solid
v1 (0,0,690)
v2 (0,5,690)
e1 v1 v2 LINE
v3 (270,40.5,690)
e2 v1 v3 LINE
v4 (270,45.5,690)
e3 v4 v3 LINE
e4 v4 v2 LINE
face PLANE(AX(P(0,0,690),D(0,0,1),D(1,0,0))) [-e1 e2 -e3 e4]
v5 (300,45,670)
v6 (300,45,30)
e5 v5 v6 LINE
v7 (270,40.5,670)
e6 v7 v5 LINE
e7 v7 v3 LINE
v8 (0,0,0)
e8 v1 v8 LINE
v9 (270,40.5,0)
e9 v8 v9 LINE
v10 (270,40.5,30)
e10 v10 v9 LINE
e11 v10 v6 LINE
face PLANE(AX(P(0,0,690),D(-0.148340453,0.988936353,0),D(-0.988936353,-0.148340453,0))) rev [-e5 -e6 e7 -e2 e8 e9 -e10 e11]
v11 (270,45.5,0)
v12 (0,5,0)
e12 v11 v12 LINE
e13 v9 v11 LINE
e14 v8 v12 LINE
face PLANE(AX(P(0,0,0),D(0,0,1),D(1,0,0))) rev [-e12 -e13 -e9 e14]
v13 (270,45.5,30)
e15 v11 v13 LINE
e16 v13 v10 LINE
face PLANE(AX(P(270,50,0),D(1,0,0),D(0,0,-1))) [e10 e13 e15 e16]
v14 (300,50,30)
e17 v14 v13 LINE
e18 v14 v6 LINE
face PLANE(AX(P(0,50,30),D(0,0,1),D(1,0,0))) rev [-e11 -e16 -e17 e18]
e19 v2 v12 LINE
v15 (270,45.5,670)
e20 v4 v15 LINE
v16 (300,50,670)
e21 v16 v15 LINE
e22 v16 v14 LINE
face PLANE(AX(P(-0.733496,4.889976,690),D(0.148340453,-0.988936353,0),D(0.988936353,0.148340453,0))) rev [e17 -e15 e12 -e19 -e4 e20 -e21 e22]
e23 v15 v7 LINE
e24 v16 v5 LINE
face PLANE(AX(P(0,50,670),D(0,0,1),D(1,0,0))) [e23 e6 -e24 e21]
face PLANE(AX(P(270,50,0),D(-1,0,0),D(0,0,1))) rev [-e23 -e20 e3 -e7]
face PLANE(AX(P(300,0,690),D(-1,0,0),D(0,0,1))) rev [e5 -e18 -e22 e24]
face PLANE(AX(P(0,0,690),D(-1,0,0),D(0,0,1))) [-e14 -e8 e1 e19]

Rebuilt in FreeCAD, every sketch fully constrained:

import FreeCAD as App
import Part
import Sketcher
Q = App.Units.Quantity


def add_polygon(sketch, points):
    """Adds a closed chain of lines whose ends are joined by coincident constraints."""
    first, n = sketch.GeometryCount, len(points)
    for a, b in zip(points, points[1:] + points[:1]):
        sketch.addGeometry(Part.LineSegment(App.Vector(*a, 0), App.Vector(*b, 0)), False)
    for i in range(n):
        sketch.addConstraint(Sketcher.Constraint("Coincident", first + i, 2, first + (i + 1) % n, 1))

doc = App.newDocument("Part")
body = doc.addObject("PartDesign::Body", "Body")

sketch1 = doc.addObject("Sketcher::SketchObject", "Sketch")
body.addObject(sketch1)
sketch1.AttachmentSupport = (doc.XY_Plane, [""])
sketch1.MapMode = "FlatFace"
add_polygon(sketch1, [(0, 5), (0, 0), (300, 45), (300, 50)])
sketch1.addConstraint([
    Sketcher.Constraint("Vertical", 0),
    Sketcher.Constraint("Vertical", 2),
    Sketcher.Constraint("Coincident", 0, 2, -1, 1),
    Sketcher.Constraint("Parallel", 1, 3),
    Sketcher.Constraint("DistanceY", 0, 2, 0, 1, Q("5 mm")),
    Sketcher.Constraint("DistanceX", -1, 1, 1, 2, Q("300 mm")),
    Sketcher.Constraint("DistanceY", -1, 1, 1, 2, Q("45 mm")),
])
pad1 = doc.addObject("PartDesign::Pad", "Pad")
body.addObject(pad1)
pad1.Profile = sketch1
pad1.Length = 690

sketch2 = doc.addObject("Sketcher::SketchObject", "Sketch001")
body.addObject(sketch2)
sketch2.AttachmentSupport = (doc.XZ_Plane, [""])
sketch2.MapMode = "FlatFace"
add_polygon(sketch2, [(270, 670), (270, 690), (300, 690), (300, 670)])
add_polygon(sketch2, [(270, 0), (270, 30), (300, 30), (300, 0)])
sketch2.addConstraint([
    Sketcher.Constraint("Vertical", 0),
    Sketcher.Constraint("Horizontal", 1),
    Sketcher.Constraint("Vertical", 2),
    Sketcher.Constraint("Horizontal", 3),
    Sketcher.Constraint("Vertical", 4),
    Sketcher.Constraint("Horizontal", 5),
    Sketcher.Constraint("Vertical", 6),
    Sketcher.Constraint("Horizontal", 7),
    Sketcher.Constraint("PointOnObject", 6, 2, -1),
    Sketcher.Constraint("Vertical", 3, 2, 4, 2),
    Sketcher.Constraint("Vertical", 2, 2, 5, 2),
    Sketcher.Constraint("Equal", 7, 4),
    Sketcher.Constraint("DistanceX", 1, 1, 1, 2, Q("30 mm")),
    Sketcher.Constraint("DistanceY", 0, 1, 0, 2, Q("20 mm")),
    Sketcher.Constraint("DistanceX", -1, 1, 0, 2, Q("270 mm")),
    Sketcher.Constraint("DistanceY", -1, 1, 0, 2, Q("690 mm")),
])
pocket1 = doc.addObject("PartDesign::Pocket", "Pocket")
body.addObject(pocket1)
pocket1.Profile = sketch2
pocket1.Type = "ThroughAll"

doc.recompute()
